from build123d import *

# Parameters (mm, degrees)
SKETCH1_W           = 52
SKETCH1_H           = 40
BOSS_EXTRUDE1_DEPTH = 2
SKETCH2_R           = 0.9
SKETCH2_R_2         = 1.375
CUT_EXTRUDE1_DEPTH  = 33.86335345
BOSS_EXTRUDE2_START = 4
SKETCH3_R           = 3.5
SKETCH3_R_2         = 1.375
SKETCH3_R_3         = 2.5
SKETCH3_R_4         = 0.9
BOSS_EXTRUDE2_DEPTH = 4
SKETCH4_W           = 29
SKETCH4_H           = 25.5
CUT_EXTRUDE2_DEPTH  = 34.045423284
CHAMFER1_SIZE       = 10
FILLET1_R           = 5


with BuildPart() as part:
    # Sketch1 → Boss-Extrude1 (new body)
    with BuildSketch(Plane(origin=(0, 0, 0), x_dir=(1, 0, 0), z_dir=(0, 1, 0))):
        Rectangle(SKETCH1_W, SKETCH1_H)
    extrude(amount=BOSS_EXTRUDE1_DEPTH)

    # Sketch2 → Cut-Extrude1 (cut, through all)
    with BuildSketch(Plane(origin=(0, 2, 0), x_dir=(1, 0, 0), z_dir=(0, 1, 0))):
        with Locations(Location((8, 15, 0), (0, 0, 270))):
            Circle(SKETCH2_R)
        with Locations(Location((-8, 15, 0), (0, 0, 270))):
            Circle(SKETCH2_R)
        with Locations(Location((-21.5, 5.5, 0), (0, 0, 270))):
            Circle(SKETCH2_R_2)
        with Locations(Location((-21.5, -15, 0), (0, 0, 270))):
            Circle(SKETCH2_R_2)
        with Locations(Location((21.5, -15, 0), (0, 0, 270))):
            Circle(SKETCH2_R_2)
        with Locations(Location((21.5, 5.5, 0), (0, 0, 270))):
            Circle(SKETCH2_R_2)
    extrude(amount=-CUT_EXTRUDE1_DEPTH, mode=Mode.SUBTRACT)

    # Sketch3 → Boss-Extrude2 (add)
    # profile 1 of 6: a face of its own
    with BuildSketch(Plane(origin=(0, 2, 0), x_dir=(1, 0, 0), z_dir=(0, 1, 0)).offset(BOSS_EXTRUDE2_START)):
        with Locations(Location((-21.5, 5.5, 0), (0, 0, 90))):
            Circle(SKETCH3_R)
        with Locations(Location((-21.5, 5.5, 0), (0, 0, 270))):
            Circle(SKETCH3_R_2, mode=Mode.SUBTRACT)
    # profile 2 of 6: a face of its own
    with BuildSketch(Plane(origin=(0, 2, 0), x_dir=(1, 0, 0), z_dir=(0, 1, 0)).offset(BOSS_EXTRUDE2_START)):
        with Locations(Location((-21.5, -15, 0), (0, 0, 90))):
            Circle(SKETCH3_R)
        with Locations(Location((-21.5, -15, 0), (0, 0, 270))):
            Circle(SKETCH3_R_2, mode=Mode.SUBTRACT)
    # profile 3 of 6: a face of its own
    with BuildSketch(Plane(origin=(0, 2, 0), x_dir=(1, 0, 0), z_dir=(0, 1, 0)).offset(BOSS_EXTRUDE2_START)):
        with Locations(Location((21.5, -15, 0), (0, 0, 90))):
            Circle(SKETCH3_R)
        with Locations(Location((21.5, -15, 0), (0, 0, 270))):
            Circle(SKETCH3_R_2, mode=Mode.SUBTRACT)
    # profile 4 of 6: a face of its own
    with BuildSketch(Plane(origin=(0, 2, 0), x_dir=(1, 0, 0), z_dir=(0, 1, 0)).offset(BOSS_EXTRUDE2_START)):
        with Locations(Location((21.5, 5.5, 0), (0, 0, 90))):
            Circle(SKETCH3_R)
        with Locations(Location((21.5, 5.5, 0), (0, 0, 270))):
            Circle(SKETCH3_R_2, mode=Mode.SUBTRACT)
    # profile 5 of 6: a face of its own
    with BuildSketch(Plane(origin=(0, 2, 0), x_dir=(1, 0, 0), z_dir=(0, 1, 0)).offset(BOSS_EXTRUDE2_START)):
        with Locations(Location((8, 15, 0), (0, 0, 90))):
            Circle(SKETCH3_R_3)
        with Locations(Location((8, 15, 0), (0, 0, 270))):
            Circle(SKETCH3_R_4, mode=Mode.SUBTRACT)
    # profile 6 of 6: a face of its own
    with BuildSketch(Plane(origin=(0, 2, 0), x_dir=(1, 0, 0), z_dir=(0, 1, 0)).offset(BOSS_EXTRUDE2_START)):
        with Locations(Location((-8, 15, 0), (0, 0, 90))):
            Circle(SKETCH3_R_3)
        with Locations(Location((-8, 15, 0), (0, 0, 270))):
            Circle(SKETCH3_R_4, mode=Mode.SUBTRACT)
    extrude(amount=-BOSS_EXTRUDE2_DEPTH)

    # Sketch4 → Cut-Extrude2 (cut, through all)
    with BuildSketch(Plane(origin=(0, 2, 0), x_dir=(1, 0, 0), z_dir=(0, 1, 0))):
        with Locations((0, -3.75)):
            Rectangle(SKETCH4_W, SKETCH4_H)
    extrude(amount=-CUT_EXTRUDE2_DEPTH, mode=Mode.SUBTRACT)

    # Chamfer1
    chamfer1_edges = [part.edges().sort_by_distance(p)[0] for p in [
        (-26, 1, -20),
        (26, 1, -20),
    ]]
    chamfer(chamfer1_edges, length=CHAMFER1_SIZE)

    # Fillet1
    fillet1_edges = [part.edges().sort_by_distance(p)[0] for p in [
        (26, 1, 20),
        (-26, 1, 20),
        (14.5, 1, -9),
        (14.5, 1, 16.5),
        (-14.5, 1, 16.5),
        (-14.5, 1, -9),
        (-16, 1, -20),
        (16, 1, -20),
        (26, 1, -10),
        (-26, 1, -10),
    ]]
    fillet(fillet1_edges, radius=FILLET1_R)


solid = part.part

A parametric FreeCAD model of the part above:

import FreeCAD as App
import Part
import Sketcher

V = App.Vector


def edges_at(feature, points):
    """Names of the edges that pass closest to the given points."""
    edges = feature.Shape.Edges
    near = lambda p: min(range(len(edges)), key=lambda i: edges[i].distToShape(Part.Vertex(*p))[0])
    return sorted({f"Edge{near(p) + 1}" for p in points})

doc = App.newDocument("Part")
params = doc.addObject("Spreadsheet::Sheet", "Params")
for row, (alias, value) in enumerate([
    ("sketch1_width", "52 mm"),
    ("sketch1_height", "40 mm"),
    ("pad1_length", "2 mm"),
    ("sketch2_diameter", "1.8 mm"),
    ("sketch2_diameter2", "2.75 mm"),
    ("sketch3_diameter", "7 mm"),
    ("sketch3_diameter2", "5 mm"),
    ("sketch3_diameter3", "1.8 mm"),
    ("sketch3_diameter4", "2.75 mm"),
    ("pad2_length", "4 mm"),
    ("sketch4_width", "29 mm"),
    ("sketch4_height", "25.5 mm"),
    ("chamfer_size", "10 mm"),
    ("fillet_radius", "5 mm"),
], start=1):
    params.set(f"A{row}", alias)
    params.set(f"B{row}", "=" + value)
    params.setAlias(f"B{row}", alias)

body = doc.addObject("PartDesign::Body", "Body")

# Sketch on XZ plane
sketch1 = body.newObject("Sketcher::SketchObject", "Sketch")
sketch1.AttachmentSupport = (doc.getObject("XZ_Plane"), [""])
sketch1.MapMode = "FlatFace"
sketch1.addGeometry(Part.LineSegment(V(-26, -20, 0), V(-26, 20, 0)), False)
sketch1.addGeometry(Part.LineSegment(V(-26, 20, 0), V(26, 20, 0)), False)
sketch1.addGeometry(Part.LineSegment(V(26, 20, 0), V(26, -20, 0)), False)
sketch1.addGeometry(Part.LineSegment(V(26, -20, 0), V(-26, -20, 0)), False)
sketch1.addConstraint(Sketcher.Constraint("Coincident", 0, 2, 1, 1))
sketch1.addConstraint(Sketcher.Constraint("Coincident", 1, 2, 2, 1))
sketch1.addConstraint(Sketcher.Constraint("Coincident", 2, 2, 3, 1))
sketch1.addConstraint(Sketcher.Constraint("Coincident", 3, 2, 0, 1))
sketch1.addConstraint(Sketcher.Constraint("Vertical", 0))
sketch1.addConstraint(Sketcher.Constraint("Horizontal", 1))
sketch1.addConstraint(Sketcher.Constraint("Vertical", 2))
sketch1.addConstraint(Sketcher.Constraint("Horizontal", 3))
sketch1.addConstraint(Sketcher.Constraint("Symmetric", 0, 2, 2, 2, -1, 1))
sketch1.addConstraint(Sketcher.Constraint("DistanceX", 1, 1, 1, 2, 52.0))
sketch1.addConstraint(Sketcher.Constraint("DistanceY", 0, 1, 0, 2, 40.0))
sketch1.setExpression("Constraints[9]", "Params.sketch1_width")
sketch1.setExpression("Constraints[10]", "Params.sketch1_height")
pad1 = body.newObject("PartDesign::Pad", "Pad")
pad1.Profile = sketch1
pad1.setExpression("Length", "Params.pad1_length")
pad1.Reversed = True

# Sketch on XZ plane
sketch2 = body.newObject("Sketcher::SketchObject", "Sketch001")
sketch2.AttachmentSupport = (doc.getObject("XZ_Plane"), [""])
sketch2.MapMode = "FlatFace"
sketch2.AttachmentOffset = App.Placement(V(0, 0, -2), App.Rotation())
sketch2.addGeometry(Part.Circle(V(8, -15, 0), V(0, 0, 1), 0.9), False)
sketch2.addGeometry(Part.Circle(V(-8, -15, 0), V(0, 0, 1), 0.9), False)
sketch2.addGeometry(Part.Circle(V(-21.5, -5.5, 0), V(0, 0, 1), 1.4), False)
sketch2.addGeometry(Part.Circle(V(-21.5, 15, 0), V(0, 0, 1), 1.4), False)
sketch2.addGeometry(Part.Circle(V(21.5, 15, 0), V(0, 0, 1), 1.4), False)
sketch2.addGeometry(Part.Circle(V(21.5, -5.5, 0), V(0, 0, 1), 1.4), False)
sketch2.addConstraint(Sketcher.Constraint("Equal", 0, 1))
sketch2.addConstraint(Sketcher.Constraint("Equal", 2, 3))
sketch2.addConstraint(Sketcher.Constraint("Equal", 3, 4))
sketch2.addConstraint(Sketcher.Constraint("Equal", 4, 5))
sketch2.addConstraint(Sketcher.Constraint("Symmetric", 0, 3, 1, 3, -2))
sketch2.addConstraint(Sketcher.Constraint("Symmetric", 3, 3, 4, 3, -2))
sketch2.addConstraint(Sketcher.Constraint("Symmetric", 2, 3, 5, 3, -2))
sketch2.addConstraint(Sketcher.Constraint("Vertical", 2, 3, 3, 3))
sketch2.addConstraint(Sketcher.Constraint("Diameter", 0, 1.8))
sketch2.addConstraint(Sketcher.Constraint("Diameter", 2, 2.75))
sketch2.addConstraint(Sketcher.Constraint("DistanceX", -1, 1, 0, 3, 8.0))
sketch2.addConstraint(Sketcher.Constraint("DistanceY", 0, 3, -1, 1, 15.0))
sketch2.addConstraint(Sketcher.Constraint("DistanceY", -1, 1, 3, 3, 15.0))
sketch2.addConstraint(Sketcher.Constraint("DistanceX", 3, 3, 4, 3, 43.0))
sketch2.addConstraint(Sketcher.Constraint("DistanceY", 2, 3, -1, 1, 5.5))
sketch2.setExpression("Constraints[8]", "Params.sketch2_diameter")
sketch2.setExpression("Constraints[9]", "Params.sketch2_diameter2")
pocket1 = body.newObject("PartDesign::Pocket", "Pocket")
pocket1.Profile = sketch2
pocket1.Type = "ThroughAll"
pocket1.Reversed = True

# Sketch on XZ plane
sketch3 = body.newObject("Sketcher::SketchObject", "Sketch002")
sketch3.AttachmentSupport = (doc.getObject("XZ_Plane"), [""])
sketch3.MapMode = "FlatFace"
sketch3.AttachmentOffset = App.Placement(V(0, 0, -6), App.Rotation())
sketch3.addGeometry(Part.Circle(V(-21.5, -5.5, 0), V(0, 0, 1), 3.5), False)
sketch3.addGeometry(Part.Circle(V(-21.5, -5.5, 0), V(0, 0, 1), 1.4), False)
sketch3.addGeometry(Part.Circle(V(-21.5, 15, 0), V(0, 0, 1), 3.5), False)
sketch3.addGeometry(Part.Circle(V(-21.5, 15, 0), V(0, 0, 1), 1.4), False)
sketch3.addGeometry(Part.Circle(V(21.5, 15, 0), V(0, 0, 1), 3.5), False)
sketch3.addGeometry(Part.Circle(V(21.5, 15, 0), V(0, 0, 1), 1.4), False)
sketch3.addGeometry(Part.Circle(V(21.5, -5.5, 0), V(0, 0, 1), 3.5), False)
sketch3.addGeometry(Part.Circle(V(21.5, -5.5, 0), V(0, 0, 1), 1.4), False)
sketch3.addGeometry(Part.Circle(V(8, -15, 0), V(0, 0, 1), 2.5), False)
sketch3.addGeometry(Part.Circle(V(8, -15, 0), V(0, 0, 1), 0.9), False)
sketch3.addGeometry(Part.Circle(V(-8, -15, 0), V(0, 0, 1), 2.5), False)
sketch3.addGeometry(Part.Circle(V(-8, -15, 0), V(0, 0, 1), 0.9), False)
sketch3.addConstraint(Sketcher.Constraint("Coincident", 1, 3, 0, 3))
sketch3.addConstraint(Sketcher.Constraint("Coincident", 3, 3, 2, 3))
sketch3.addConstraint(Sketcher.Constraint("Coincident", 5, 3, 4, 3))
sketch3.addConstraint(Sketcher.Constraint("Coincident", 7, 3, 6, 3))
sketch3.addConstraint(Sketcher.Constraint("Coincident", 9, 3, 8, 3))
sketch3.addConstraint(Sketcher.Constraint("Coincident", 11, 3, 10, 3))
sketch3.addConstraint(Sketcher.Constraint("Equal", 0, 2))
sketch3.addConstraint(Sketcher.Constraint("Equal", 1, 3))
sketch3.addConstraint(Sketcher.Constraint("Equal", 2, 4))
sketch3.addConstraint(Sketcher.Constraint("Equal", 3, 5))
sketch3.addConstraint(Sketcher.Constraint("Equal", 4, 6))
sketch3.addConstraint(Sketcher.Constraint("Equal", 5, 7))
sketch3.addConstraint(Sketcher.Constraint("Equal", 8, 10))
sketch3.addConstraint(Sketcher.Constraint("Equal", 9, 11))
sketch3.addConstraint(Sketcher.Constraint("Symmetric", 2, 3, 4, 3, -2))
sketch3.addConstraint(Sketcher.Constraint("Symmetric", 0, 3, 6, 3, -2))
sketch3.addConstraint(Sketcher.Constraint("Symmetric", 8, 3, 10, 3, -2))
sketch3.addConstraint(Sketcher.Constraint("Vertical", 1, 3, 2, 3))
sketch3.addConstraint(Sketcher.Constraint("Diameter", 0, 7.0))
sketch3.addConstraint(Sketcher.Constraint("Diameter", 8, 5.0))
sketch3.addConstraint(Sketcher.Constraint("Diameter", 9, 1.8))
sketch3.addConstraint(Sketcher.Constraint("Diameter", 1, 2.75))
sketch3.addConstraint(Sketcher.Constraint("DistanceY", -1, 1, 2, 3, 15.0))
sketch3.addConstraint(Sketcher.Constraint("DistanceX", -1, 1, 8, 3, 8.0))
sketch3.addConstraint(Sketcher.Constraint("DistanceY", 8, 3, -1, 1, 15.0))
sketch3.addConstraint(Sketcher.Constraint("DistanceX", 2, 3, 4, 3, 43.0))
sketch3.addConstraint(Sketcher.Constraint("DistanceY", 0, 3, -1, 1, 5.5))
sketch3.setExpression("Constraints[18]", "Params.sketch3_diameter")
sketch3.setExpression("Constraints[19]", "Params.sketch3_diameter2")
sketch3.setExpression("Constraints[20]", "Params.sketch3_diameter3")
sketch3.setExpression("Constraints[21]", "Params.sketch3_diameter4")
pad2 = body.newObject("PartDesign::Pad", "Pad001")
pad2.Profile = sketch3
pad2.setExpression("Length", "Params.pad2_length")

# Sketch on XZ plane
sketch4 = body.newObject("Sketcher::SketchObject", "Sketch003")
sketch4.AttachmentSupport = (doc.getObject("XZ_Plane"), [""])
sketch4.MapMode = "FlatFace"
sketch4.AttachmentOffset = App.Placement(V(0, 0, -2), App.Rotation())
sketch4.addGeometry(Part.LineSegment(V(-14, -9, 0), V(-14, 16, 0)), False)
sketch4.addGeometry(Part.LineSegment(V(-14, 16, 0), V(14, 16, 0)), False)
sketch4.addGeometry(Part.LineSegment(V(14, 16, 0), V(14, -9, 0)), False)
sketch4.addGeometry(Part.LineSegment(V(14, -9, 0), V(-14, -9, 0)), False)
sketch4.addConstraint(Sketcher.Constraint("Coincident", 0, 2, 1, 1))
sketch4.addConstraint(Sketcher.Constraint("Coincident", 1, 2, 2, 1))
sketch4.addConstraint(Sketcher.Constraint("Coincident", 2, 2, 3, 1))
sketch4.addConstraint(Sketcher.Constraint("Coincident", 3, 2, 0, 1))
sketch4.addConstraint(Sketcher.Constraint("Vertical", 0))
sketch4.addConstraint(Sketcher.Constraint("Horizontal", 1))
sketch4.addConstraint(Sketcher.Constraint("Vertical", 2))
sketch4.addConstraint(Sketcher.Constraint("Horizontal", 3))
sketch4.addConstraint(Sketcher.Constraint("DistanceX", 1, 1, 1, 2, 29.0))
sketch4.addConstraint(Sketcher.Constraint("DistanceY", 0, 1, 0, 2, 25.5))
sketch4.addConstraint(Sketcher.Constraint("DistanceY", 2, 2, -1, 1, 9.0))
sketch4.addConstraint(Sketcher.Constraint("DistanceX", 0, 2, -1, 1, 14.5))
sketch4.setExpression("Constraints[8]", "Params.sketch4_width")
sketch4.setExpression("Constraints[9]", "Params.sketch4_height")
pocket2 = body.newObject("PartDesign::Pocket", "Pocket001")
pocket2.Profile = sketch4
pocket2.Type = "ThroughAll"
pocket2.Reversed = True
doc.recompute()

chamfer = body.newObject("PartDesign::Chamfer", "Chamfer")
chamfer.Base = (pocket2, edges_at(pocket2, [(-26, 1, -20), (26, 1, -20)]))
chamfer.setExpression("Size", "Params.chamfer_size")
doc.recompute()

fillet = body.newObject("PartDesign::Fillet", "Fillet")
fillet.Base = (chamfer, edges_at(chamfer, [
    (26, 1, 20),
    (-26, 1, 20),
    (14.5, 1, -9),
    (14.5, 1, 16.5),
    (-14.5, 1, 16.5),
    (-14.5, 1, -9),
    (-16, 1, -20),
    (16, 1, -20),
    (26, 1, -10),
    (-26, 1, -10),
]))
fillet.setExpression("Radius", "Params.fillet_radius")

doc.recompute()
